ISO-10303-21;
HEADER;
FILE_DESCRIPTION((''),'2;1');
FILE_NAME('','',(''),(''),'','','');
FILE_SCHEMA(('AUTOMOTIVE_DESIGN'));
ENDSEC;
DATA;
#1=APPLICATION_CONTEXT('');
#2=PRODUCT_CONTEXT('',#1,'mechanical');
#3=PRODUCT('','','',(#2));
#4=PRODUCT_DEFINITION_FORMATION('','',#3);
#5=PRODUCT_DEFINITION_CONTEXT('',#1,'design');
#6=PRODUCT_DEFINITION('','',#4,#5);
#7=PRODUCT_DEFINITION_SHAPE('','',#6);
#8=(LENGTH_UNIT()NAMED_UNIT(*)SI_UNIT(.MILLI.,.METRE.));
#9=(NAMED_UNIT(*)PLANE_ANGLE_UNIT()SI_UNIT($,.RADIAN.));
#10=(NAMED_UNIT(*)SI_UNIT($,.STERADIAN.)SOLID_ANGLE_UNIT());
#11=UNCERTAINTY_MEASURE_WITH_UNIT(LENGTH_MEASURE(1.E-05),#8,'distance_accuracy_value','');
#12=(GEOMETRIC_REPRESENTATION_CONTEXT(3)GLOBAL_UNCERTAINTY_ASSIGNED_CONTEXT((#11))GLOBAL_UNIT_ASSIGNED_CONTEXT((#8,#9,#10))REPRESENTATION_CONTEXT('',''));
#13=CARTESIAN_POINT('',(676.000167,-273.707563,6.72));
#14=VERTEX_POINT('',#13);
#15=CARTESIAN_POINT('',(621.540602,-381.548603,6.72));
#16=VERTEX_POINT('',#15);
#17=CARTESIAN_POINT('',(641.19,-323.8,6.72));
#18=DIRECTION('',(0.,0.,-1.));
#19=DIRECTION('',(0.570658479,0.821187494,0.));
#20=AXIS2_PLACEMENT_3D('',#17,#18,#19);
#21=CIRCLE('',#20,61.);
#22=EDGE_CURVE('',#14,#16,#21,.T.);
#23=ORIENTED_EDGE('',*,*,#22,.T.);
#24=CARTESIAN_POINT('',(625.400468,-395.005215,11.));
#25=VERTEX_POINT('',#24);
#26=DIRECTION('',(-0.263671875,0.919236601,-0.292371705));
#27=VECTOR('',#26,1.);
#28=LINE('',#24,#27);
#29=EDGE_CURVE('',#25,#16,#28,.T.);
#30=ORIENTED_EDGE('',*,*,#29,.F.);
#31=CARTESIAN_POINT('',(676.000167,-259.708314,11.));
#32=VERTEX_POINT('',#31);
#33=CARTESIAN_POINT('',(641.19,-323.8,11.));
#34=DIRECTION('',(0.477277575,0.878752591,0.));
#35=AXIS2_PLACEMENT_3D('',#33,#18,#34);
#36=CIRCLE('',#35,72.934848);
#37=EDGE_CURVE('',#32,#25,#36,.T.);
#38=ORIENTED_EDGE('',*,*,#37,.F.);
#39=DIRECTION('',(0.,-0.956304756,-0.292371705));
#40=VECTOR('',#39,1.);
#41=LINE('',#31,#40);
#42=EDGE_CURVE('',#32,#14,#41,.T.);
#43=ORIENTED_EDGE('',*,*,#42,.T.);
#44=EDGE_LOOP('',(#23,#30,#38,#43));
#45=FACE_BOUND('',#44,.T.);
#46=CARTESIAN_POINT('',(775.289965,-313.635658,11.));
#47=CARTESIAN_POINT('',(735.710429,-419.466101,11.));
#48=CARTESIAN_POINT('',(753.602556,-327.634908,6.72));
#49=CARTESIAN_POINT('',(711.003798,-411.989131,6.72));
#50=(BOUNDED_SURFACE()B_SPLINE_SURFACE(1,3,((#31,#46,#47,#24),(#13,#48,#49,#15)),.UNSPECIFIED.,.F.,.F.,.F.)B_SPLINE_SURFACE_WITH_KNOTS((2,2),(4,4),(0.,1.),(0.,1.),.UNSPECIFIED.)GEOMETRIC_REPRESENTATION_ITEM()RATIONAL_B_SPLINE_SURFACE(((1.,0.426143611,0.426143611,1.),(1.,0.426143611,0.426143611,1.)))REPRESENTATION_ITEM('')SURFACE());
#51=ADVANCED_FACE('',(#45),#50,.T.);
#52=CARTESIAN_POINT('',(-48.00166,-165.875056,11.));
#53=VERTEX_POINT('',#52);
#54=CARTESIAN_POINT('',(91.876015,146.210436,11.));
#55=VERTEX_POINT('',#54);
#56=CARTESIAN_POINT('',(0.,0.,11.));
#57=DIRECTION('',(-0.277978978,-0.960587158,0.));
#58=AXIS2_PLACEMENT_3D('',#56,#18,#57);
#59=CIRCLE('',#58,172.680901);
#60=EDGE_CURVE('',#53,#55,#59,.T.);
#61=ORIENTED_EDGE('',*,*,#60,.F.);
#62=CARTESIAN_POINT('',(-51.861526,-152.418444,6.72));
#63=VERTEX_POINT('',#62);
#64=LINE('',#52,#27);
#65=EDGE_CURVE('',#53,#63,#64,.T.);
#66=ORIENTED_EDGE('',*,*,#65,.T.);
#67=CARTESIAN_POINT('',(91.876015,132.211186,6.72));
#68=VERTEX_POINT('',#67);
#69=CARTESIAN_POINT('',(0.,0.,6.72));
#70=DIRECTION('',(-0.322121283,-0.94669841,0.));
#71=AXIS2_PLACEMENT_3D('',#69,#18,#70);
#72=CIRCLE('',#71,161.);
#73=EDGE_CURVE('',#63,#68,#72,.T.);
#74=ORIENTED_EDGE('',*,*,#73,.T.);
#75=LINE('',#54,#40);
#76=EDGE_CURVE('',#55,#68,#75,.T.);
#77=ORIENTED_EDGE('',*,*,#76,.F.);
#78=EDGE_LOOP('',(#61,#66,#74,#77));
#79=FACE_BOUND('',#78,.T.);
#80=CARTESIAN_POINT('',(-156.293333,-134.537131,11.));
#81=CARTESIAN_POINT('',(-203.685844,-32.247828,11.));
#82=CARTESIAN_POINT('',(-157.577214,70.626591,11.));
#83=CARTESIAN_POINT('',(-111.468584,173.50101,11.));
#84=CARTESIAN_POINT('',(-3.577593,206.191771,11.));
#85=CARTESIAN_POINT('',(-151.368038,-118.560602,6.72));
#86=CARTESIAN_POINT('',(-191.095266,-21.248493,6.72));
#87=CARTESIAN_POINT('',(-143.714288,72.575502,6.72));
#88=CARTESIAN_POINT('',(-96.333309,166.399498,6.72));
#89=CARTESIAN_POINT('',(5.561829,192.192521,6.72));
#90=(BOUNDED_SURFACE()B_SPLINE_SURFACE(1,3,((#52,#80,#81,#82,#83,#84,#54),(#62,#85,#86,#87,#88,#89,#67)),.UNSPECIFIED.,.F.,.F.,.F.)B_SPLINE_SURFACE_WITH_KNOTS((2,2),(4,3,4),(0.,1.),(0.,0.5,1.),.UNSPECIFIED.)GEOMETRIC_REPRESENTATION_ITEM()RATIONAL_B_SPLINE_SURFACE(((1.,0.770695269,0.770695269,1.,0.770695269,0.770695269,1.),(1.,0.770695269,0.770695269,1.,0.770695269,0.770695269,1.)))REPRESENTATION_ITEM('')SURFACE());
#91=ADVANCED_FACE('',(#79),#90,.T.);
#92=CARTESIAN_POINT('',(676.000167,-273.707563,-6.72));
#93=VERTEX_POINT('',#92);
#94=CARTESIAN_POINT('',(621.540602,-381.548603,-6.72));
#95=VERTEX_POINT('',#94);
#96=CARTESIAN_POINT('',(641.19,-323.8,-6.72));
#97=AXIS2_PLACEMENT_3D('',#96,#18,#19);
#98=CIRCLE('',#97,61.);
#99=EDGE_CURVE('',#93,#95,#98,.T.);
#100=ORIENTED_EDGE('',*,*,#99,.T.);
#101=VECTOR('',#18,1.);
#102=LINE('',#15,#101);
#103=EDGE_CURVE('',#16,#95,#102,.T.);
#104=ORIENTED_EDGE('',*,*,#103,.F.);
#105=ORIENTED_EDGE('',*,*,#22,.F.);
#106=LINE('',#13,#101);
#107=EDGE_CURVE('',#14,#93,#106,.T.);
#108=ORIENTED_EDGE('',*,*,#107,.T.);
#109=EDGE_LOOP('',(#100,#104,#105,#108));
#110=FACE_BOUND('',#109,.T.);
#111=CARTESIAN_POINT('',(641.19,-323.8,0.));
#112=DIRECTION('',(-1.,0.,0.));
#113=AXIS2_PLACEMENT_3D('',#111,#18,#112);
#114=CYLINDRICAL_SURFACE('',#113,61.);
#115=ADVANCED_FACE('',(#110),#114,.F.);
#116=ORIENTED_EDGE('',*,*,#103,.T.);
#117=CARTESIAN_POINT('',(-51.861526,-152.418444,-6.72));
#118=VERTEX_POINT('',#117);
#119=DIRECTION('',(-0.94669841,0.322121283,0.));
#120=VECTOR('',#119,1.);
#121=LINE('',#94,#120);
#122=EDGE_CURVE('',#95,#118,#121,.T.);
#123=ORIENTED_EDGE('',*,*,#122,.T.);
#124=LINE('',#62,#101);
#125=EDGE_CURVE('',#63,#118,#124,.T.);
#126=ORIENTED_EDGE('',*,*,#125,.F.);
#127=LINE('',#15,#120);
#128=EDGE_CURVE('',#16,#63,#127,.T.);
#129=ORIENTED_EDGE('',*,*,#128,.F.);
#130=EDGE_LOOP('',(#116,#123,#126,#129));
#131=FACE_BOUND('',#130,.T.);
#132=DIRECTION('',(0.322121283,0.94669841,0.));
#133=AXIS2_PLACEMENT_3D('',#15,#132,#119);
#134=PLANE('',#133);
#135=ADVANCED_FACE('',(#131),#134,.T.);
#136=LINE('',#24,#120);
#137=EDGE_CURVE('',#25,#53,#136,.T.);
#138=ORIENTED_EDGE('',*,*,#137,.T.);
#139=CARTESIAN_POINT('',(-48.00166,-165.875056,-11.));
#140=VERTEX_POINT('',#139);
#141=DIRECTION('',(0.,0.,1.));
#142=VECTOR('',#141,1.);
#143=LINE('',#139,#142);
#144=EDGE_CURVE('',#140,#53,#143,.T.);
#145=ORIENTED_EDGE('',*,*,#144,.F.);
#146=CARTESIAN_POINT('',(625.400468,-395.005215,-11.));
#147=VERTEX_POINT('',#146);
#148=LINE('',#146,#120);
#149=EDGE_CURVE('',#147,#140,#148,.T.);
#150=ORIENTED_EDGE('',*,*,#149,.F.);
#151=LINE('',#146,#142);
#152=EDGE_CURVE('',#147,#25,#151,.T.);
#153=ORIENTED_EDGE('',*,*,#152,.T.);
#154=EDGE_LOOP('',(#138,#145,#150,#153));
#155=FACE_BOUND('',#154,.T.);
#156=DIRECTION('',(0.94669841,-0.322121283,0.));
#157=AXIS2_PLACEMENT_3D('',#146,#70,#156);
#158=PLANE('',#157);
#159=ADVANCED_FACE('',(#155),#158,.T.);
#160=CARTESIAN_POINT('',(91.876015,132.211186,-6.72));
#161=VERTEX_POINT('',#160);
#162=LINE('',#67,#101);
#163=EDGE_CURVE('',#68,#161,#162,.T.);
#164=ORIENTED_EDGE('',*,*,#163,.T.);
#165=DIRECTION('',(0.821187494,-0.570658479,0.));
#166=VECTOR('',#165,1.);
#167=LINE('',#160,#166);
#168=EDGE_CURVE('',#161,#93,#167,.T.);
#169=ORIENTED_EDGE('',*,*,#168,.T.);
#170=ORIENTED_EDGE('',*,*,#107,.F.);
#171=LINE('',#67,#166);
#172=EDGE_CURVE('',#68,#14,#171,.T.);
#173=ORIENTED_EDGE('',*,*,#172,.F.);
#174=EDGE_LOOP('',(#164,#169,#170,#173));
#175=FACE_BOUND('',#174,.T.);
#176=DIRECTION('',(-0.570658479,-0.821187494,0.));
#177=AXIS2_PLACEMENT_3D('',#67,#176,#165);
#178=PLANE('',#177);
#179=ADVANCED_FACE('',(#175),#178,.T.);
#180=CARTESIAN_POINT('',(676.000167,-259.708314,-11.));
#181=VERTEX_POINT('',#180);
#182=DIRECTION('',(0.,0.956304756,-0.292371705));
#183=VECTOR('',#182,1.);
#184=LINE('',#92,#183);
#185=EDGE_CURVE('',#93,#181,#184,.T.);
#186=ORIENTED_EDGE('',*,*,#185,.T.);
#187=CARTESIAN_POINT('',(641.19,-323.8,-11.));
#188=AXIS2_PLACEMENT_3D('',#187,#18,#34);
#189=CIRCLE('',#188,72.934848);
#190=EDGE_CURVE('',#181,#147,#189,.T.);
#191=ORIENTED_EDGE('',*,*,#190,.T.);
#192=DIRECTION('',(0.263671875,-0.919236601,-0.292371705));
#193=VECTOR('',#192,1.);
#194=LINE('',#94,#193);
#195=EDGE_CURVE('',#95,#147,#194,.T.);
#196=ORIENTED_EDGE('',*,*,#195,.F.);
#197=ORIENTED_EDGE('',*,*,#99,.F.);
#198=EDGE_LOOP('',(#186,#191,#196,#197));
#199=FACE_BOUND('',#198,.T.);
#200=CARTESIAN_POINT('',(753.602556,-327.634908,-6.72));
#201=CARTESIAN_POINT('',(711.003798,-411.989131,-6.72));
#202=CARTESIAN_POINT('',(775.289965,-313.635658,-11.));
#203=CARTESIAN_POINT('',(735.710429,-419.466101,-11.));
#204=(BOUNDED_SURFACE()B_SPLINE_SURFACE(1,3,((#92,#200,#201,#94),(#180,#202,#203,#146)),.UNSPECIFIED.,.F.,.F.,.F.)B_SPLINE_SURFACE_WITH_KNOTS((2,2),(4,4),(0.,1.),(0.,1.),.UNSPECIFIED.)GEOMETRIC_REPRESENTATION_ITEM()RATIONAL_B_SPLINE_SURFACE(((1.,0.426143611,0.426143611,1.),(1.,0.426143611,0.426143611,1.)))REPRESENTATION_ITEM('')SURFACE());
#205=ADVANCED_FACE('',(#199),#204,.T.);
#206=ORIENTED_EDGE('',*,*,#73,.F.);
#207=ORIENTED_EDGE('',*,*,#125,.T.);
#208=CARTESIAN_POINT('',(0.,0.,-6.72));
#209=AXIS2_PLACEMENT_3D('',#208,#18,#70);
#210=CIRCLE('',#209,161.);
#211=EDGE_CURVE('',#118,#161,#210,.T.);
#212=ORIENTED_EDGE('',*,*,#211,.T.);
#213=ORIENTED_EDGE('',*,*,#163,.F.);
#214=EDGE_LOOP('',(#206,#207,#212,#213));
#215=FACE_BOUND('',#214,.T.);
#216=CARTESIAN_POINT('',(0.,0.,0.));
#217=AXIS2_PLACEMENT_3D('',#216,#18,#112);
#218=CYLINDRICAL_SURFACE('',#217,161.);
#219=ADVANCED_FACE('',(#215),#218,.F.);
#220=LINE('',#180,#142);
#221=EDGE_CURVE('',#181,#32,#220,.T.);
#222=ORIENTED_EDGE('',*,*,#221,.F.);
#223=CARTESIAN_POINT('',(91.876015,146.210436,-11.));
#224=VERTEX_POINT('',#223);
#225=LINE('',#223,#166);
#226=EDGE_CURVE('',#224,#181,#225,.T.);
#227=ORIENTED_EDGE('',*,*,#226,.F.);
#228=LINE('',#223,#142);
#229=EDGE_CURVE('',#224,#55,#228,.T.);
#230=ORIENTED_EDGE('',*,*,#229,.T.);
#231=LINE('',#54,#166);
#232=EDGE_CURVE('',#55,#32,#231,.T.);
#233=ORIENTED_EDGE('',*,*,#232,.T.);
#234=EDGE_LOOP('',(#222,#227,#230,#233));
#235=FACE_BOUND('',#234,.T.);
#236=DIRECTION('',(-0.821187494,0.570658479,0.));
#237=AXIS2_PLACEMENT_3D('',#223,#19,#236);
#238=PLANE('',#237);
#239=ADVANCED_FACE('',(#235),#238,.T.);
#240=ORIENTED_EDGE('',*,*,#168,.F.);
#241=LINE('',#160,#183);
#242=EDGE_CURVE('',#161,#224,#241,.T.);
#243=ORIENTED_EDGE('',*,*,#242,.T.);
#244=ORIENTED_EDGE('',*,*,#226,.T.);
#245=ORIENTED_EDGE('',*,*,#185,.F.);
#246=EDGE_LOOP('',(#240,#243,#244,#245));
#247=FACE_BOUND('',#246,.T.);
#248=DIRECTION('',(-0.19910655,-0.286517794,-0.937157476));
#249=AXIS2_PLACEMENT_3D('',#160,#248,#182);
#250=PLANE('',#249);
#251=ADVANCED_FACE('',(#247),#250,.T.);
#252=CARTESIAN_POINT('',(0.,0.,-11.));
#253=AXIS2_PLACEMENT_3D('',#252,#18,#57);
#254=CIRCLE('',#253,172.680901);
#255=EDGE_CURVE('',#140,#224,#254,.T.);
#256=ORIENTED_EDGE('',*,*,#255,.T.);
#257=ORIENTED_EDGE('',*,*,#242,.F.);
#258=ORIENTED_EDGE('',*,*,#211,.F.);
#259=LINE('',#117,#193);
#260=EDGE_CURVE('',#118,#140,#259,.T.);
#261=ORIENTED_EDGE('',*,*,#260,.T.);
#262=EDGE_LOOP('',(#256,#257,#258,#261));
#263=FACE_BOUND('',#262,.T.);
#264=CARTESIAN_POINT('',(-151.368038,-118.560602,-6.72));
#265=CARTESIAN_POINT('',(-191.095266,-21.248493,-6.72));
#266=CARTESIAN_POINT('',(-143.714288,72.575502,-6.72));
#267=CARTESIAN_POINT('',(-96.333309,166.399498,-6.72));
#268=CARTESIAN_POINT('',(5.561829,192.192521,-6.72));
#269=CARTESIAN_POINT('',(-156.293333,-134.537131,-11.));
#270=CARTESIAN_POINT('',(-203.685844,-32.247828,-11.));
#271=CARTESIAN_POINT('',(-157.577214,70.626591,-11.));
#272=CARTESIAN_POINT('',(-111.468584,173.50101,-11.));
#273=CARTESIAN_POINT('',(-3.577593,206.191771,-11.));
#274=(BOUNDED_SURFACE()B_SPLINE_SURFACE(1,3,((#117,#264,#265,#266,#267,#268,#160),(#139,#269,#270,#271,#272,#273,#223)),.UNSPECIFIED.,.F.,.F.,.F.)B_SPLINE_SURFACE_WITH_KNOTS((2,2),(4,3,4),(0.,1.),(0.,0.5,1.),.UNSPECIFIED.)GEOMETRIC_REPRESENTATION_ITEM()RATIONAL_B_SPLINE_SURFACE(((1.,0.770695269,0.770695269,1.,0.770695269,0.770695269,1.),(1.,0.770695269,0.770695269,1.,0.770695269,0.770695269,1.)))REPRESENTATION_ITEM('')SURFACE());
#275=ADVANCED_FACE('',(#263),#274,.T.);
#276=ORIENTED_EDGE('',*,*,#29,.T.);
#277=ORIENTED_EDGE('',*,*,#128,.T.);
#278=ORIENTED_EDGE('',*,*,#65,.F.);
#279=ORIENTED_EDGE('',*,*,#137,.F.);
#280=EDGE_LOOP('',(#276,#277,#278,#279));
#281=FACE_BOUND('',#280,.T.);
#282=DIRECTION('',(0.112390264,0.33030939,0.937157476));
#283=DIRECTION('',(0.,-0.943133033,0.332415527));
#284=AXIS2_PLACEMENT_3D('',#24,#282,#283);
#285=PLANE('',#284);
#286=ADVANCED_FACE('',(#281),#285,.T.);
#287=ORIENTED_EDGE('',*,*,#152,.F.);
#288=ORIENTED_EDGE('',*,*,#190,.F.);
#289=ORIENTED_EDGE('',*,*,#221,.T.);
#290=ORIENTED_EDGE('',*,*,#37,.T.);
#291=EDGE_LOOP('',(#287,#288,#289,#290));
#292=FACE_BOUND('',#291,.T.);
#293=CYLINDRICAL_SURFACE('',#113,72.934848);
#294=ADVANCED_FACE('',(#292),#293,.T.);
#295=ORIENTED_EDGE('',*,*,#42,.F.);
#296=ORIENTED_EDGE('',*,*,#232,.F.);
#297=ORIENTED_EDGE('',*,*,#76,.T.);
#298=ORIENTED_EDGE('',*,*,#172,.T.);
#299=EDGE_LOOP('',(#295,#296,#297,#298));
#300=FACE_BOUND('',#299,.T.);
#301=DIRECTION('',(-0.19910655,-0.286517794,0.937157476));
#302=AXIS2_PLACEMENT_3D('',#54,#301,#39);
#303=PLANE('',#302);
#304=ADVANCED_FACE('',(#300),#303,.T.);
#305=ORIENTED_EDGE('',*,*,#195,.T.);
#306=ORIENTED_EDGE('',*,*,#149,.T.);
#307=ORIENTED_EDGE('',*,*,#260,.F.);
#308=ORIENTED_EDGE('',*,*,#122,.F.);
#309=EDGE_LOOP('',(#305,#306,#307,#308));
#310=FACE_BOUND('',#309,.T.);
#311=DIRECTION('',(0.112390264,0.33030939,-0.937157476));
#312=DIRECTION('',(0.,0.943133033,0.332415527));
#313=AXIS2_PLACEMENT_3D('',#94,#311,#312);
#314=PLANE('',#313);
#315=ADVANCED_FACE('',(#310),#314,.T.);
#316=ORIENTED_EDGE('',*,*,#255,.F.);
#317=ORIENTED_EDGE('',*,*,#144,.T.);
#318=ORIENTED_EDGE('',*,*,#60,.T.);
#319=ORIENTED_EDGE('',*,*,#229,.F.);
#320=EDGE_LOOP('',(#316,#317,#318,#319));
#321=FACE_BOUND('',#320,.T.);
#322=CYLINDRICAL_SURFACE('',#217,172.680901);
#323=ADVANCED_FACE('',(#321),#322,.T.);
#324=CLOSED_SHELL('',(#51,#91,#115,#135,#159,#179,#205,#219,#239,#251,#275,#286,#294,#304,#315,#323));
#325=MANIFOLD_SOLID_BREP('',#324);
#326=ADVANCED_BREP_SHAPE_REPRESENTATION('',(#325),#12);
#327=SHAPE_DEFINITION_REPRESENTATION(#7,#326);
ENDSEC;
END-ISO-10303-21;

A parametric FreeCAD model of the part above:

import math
import FreeCAD as App
import Part
import Sketcher

V = App.Vector
Q = App.Units.Quantity


def add_polygon(sketch, points):
    """Adds a closed chain of lines whose ends are joined by coincident constraints."""
    first, n = sketch.GeometryCount, len(points)
    for a, b in zip(points, points[1:] + points[:1]):
        sketch.addGeometry(Part.LineSegment(App.Vector(*a, 0), App.Vector(*b, 0)), False)
    for i in range(n):
        sketch.addConstraint(Sketcher.Constraint("Coincident", first + i, 2, first + (i + 1) % n, 1))

doc = App.newDocument("Part")
params = doc.addObject("Spreadsheet::Sheet", "Params")
for row, (alias, value) in enumerate([
    ("sketch1_height", "22 mm"),
    ("sketch1_height2", "13.44 mm"),
    ("sketch2_radius", "61 mm"),
    ("sketch2_radius2", "161 mm"),
], start=1):
    params.set(f"A{row}", alias)
    params.set(f"B{row}", "=" + value)
    params.setAlias(f"B{row}", alias)

body = doc.addObject("PartDesign::Body", "Body")

sketch1 = doc.addObject("Sketcher::SketchObject", "Sketch")
body.addObject(sketch1)
sketch1.AttachmentSupport = (doc.YZ_Plane, [""])
sketch1.MapMode = "FlatFace"
sketch1.AttachmentOffset = App.Placement(V(0, 0, 91.876015), App.Rotation())
add_polygon(sketch1, [(132, 7), (132, -7), (146, -11), (146, 11)])
sketch1.addConstraint([
    Sketcher.Constraint("Vertical", 0),
    Sketcher.Constraint("Vertical", 2),
    Sketcher.Constraint("Equal", 1, 3),
    Sketcher.Constraint("DistanceY", 2, 1, 2, 2, Q("22 mm")),
    Sketcher.Constraint("Angle", 1, Q("-17 deg")),
    Sketcher.Constraint("DistanceY", 1, 2, -1, 1, Q("11 mm")),
    Sketcher.Constraint("DistanceY", 0, 2, 0, 1, Q("13.44 mm")),
    Sketcher.Constraint("DistanceX", -1, 1, 0, 2, Q("132.211186 mm")),
])
sketch1.setExpression("Constraints[7]", "Params.sketch1_height")
sketch1.setExpression("Constraints[10]", "Params.sketch1_height2")

sketch2 = doc.addObject("Sketcher::SketchObject", "Sketch001")
body.addObject(sketch2)
sketch2.AttachmentSupport = (doc.XY_Plane, [""])
sketch2.MapMode = "FlatFace"
sketch2.addGeometry([
    Part.LineSegment(V(92, 132, 0), V(676, -274, 0)),
    Part.ArcOfCircle(Part.Circle(V(641, -324, 0), V(0, 0, 1), 61), math.radians(-109), math.radians(55)),
    Part.LineSegment(V(622, -382, 0), V(-52, -152, 0)),
    Part.ArcOfCircle(Part.Circle(V(0, 0, 0), V(0, 0, 1), 161), math.radians(55), math.radians(251)),
], False)
sketch2.addConstraint([
    Sketcher.Constraint("Tangent", 0, 2, 1, 2),
    Sketcher.Constraint("Tangent", 1, 1, 2, 1),
    Sketcher.Constraint("Tangent", 2, 2, 3, 2),
    Sketcher.Constraint("Tangent", 3, 1, 0, 1),
    Sketcher.Constraint("Coincident", 3, 3, -1, 1),
    Sketcher.Constraint("Radius", 1, Q("61 mm")),
    Sketcher.Constraint("Radius", 3, Q("161 mm")),
    Sketcher.Constraint("DistanceY", 1, 3, -1, 1, Q("323.8 mm")),
    Sketcher.Constraint("DistanceX", -1, 1, 1, 3, Q("641.19 mm")),
])
sketch2.setExpression("Constraints[5]", "Params.sketch2_radius")
sketch2.setExpression("Constraints[6]", "Params.sketch2_radius2")
doc.recompute()

additivepipe = doc.addObject("PartDesign::AdditivePipe", "AdditivePipe")
body.addObject(additivepipe)
additivepipe.Profile = sketch1
additivepipe.Spine = (sketch2, ["Edge1", "Edge2", "Edge3", "Edge4"])

doc.recompute()
